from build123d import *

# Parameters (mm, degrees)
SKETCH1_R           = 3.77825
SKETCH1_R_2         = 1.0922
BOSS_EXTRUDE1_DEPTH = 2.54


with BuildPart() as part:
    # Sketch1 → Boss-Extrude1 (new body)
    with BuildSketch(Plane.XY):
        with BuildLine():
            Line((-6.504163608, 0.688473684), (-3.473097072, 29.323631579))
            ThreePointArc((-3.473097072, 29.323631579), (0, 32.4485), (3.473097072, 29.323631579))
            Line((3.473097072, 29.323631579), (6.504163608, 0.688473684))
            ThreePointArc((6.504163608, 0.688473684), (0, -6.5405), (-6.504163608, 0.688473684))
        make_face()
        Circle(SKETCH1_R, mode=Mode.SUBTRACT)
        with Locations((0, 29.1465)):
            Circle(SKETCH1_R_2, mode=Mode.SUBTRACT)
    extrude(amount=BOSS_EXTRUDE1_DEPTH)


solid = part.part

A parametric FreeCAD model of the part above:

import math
import FreeCAD as App
import Part
import Sketcher

V = App.Vector
Q = App.Units.Quantity

doc = App.newDocument("Part")
body = doc.addObject("PartDesign::Body", "Body")

# Sketch on XY plane
sketch1 = doc.addObject("Sketcher::SketchObject", "Sketch")
body.addObject(sketch1)
sketch1.AttachmentSupport = (doc.XY_Plane, [""])
sketch1.MapMode = "FlatFace"
sketch1.addGeometry([
    Part.LineSegment(V(-3.5, 29.3, 0), V(-6.5, 0.7, 0)),  # 0
    Part.ArcOfCircle(Part.Circle(V(0, 0, 0), V(0, 0, 1), 6.5), math.radians(174), math.radians(366)),  # 1
    Part.LineSegment(V(6.5, 0.7, 0), V(3.5, 29.3, 0)),  # 2
    Part.ArcOfCircle(Part.Circle(V(0, 29, 0), V(0, 0, 1), 3.5), math.radians(6), math.radians(174)),  # 3
    Part.Circle(V(0, 0, 0), V(0, 0, 1), 3.8),  # 4
    Part.Circle(V(0, 29.1, 0), V(0, 0, 1), 1.1),  # 5
], False)
sketch1.addConstraint([
    Sketcher.Constraint("Tangent", 0, 2, 1, 1),
    Sketcher.Constraint("Tangent", 1, 2, 2, 1),
    Sketcher.Constraint("Tangent", 2, 2, 3, 1),
    Sketcher.Constraint("Tangent", 3, 2, 0, 1),
    Sketcher.Constraint("Coincident", 1, 3, -1, 1),
    Sketcher.Constraint("Coincident", 4, 3, -1, 1),
    Sketcher.Constraint("PointOnObject", 3, 3, -2),
    Sketcher.Constraint("PointOnObject", 5, 3, -2),
    Sketcher.Constraint("Diameter", 5, Q("0.086 in")),
    Sketcher.Constraint("Diameter", 4, Q("0.2975 in")),
    Sketcher.Constraint("Radius", 1, Q("0.2575 in")),
    Sketcher.Constraint("Radius", 3, Q("0.1375 in")),
    Sketcher.Constraint("DistanceY", -1, 1, 3, 3, Q("1.14 in")),
    Sketcher.Constraint("DistanceY", -1, 1, 5, 3, Q("1.1475 in")),
])
pad1 = doc.addObject("PartDesign::Pad", "Pad")
body.addObject(pad1)
pad1.Profile = sketch1
pad1.Length = Q("0.1 in")

doc.recompute()
